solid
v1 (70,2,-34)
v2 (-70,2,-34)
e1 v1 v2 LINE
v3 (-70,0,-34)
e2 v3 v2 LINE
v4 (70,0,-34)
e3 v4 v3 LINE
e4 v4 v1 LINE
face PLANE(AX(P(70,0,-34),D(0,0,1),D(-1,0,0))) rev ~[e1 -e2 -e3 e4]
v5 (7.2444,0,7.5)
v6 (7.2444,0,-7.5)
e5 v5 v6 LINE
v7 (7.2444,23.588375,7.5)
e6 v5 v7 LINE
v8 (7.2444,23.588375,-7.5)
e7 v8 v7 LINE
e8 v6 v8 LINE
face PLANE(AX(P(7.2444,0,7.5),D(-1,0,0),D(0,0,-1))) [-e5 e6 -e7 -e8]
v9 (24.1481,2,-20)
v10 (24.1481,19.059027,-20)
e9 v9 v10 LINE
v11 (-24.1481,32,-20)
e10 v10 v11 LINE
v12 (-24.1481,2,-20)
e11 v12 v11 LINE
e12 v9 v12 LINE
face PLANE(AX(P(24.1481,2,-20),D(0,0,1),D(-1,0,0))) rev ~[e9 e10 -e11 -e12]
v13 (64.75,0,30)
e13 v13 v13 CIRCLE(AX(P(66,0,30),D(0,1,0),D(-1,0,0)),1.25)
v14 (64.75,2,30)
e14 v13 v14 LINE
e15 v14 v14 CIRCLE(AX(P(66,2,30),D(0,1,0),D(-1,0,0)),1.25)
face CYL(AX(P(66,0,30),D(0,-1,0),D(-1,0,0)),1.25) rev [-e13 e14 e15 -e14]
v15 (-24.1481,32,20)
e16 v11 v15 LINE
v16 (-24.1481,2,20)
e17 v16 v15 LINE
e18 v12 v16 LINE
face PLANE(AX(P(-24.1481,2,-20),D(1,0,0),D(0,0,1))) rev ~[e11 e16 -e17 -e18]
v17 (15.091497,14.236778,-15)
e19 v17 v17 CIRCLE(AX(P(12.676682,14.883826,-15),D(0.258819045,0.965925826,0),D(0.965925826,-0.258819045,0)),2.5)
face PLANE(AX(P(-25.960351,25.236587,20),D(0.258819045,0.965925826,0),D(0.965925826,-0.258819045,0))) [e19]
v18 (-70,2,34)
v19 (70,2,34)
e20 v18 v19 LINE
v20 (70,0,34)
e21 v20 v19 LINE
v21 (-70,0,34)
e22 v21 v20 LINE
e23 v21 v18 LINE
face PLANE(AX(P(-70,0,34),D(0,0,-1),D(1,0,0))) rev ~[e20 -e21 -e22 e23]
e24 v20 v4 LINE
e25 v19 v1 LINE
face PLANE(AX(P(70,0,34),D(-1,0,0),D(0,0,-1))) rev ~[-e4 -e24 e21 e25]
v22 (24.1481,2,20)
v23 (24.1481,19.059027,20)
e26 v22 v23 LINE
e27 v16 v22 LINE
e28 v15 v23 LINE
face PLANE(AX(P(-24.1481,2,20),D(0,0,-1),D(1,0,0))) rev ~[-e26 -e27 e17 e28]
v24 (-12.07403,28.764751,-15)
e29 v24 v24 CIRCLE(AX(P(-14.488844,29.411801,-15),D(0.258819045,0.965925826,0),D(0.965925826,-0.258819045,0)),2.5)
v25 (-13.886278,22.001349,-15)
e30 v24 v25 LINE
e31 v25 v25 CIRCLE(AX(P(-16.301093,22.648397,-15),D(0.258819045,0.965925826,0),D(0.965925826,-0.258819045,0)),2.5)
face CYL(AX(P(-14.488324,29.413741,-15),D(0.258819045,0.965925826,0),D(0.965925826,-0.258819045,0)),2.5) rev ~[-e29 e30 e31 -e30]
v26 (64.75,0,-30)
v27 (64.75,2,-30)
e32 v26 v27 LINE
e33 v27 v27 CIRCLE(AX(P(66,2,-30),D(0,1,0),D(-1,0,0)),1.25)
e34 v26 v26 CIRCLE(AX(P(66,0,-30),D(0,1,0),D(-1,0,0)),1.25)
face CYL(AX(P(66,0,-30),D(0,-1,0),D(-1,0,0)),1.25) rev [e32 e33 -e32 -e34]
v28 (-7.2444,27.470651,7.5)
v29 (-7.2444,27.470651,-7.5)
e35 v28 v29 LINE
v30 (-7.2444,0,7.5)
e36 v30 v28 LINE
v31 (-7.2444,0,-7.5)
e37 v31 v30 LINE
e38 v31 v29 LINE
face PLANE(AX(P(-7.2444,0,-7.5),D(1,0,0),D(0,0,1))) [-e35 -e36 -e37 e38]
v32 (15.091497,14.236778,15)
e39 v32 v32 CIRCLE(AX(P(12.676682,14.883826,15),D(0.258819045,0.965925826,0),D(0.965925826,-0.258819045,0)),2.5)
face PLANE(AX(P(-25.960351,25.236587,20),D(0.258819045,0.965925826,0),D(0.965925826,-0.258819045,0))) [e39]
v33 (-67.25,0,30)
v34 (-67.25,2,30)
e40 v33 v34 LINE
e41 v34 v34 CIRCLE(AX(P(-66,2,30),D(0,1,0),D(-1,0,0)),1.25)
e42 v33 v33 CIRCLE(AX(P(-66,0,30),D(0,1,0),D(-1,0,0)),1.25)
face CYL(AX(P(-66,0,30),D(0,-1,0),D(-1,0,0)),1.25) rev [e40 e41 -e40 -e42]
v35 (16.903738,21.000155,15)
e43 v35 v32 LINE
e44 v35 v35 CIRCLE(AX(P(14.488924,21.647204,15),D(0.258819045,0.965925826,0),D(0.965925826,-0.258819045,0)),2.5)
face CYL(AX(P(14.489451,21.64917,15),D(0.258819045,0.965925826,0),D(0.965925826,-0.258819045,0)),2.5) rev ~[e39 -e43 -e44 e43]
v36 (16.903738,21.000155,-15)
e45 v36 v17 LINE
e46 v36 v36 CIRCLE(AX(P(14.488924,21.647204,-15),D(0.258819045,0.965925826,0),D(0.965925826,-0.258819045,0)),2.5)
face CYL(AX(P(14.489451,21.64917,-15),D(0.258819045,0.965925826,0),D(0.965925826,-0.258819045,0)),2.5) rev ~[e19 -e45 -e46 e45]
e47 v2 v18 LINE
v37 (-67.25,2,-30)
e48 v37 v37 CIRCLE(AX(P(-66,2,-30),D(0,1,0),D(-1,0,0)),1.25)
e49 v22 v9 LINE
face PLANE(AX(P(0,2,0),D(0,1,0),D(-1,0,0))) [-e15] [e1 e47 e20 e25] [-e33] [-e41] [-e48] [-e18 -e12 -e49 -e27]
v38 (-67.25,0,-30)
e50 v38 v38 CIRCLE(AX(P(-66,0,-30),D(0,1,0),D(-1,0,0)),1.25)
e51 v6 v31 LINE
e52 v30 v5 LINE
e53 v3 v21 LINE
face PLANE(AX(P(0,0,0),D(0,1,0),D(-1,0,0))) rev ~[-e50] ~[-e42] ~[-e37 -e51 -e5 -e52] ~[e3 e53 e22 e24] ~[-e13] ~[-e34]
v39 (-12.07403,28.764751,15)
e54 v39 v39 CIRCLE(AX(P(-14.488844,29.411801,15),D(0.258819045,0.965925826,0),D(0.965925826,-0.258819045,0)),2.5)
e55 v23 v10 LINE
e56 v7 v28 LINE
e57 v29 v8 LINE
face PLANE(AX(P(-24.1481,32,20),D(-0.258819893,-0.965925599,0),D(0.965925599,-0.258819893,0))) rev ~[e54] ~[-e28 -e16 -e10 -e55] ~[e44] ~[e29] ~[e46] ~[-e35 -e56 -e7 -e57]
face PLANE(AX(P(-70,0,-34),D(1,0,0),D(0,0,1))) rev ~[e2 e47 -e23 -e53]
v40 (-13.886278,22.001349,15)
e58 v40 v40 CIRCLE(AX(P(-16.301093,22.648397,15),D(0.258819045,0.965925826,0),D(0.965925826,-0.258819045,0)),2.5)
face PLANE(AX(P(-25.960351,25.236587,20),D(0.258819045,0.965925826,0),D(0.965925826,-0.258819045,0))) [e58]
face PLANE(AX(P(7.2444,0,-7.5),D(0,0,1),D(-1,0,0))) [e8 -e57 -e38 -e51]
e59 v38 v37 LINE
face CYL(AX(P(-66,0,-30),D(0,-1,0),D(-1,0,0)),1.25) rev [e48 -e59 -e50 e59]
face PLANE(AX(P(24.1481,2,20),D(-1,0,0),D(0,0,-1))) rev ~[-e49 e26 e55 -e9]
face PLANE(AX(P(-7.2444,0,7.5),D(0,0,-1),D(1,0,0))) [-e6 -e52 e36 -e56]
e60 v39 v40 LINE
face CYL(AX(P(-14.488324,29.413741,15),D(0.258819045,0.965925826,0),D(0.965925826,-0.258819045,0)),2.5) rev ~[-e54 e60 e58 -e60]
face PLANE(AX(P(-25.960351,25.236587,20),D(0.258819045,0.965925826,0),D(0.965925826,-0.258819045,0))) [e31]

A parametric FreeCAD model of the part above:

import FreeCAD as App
import Part
import Sketcher

V = App.Vector
Q = App.Units.Quantity

doc = App.newDocument("Part")
params = doc.addObject("Spreadsheet::Sheet", "Params")
for row, (alias, value) in enumerate([
    ("sketch1_diameter", "2.5 mm"),
    ("sketch1_width", "140 mm"),
    ("sketch1_height", "68 mm"),
    ("pad1_length", "2 mm"),
    ("sketch2_height", "40 mm"),
    ("pad2_length", "30 mm"),
    ("sketch3_length", "50 mm"),
    ("sketch4_diameter", "5 mm"),
    ("pocket2_length", "7 mm"),
    ("sketch5_height", "15 mm"),
], start=1):
    params.set(f"A{row}", alias)
    params.set(f"B{row}", "=" + value)
    params.setAlias(f"B{row}", alias)

body = doc.addObject("PartDesign::Body", "Body")

sketch1 = doc.addObject("Sketcher::SketchObject", "Sketch")
body.addObject(sketch1)
sketch1.AttachmentSupport = (doc.XZ_Plane, [""])
sketch1.MapMode = "FlatFace"
sketch1.addGeometry([
    Part.LineSegment(V(-70, -34, 0), V(-70, 34, 0)),
    Part.LineSegment(V(-70, 34, 0), V(70, 34, 0)),
    Part.LineSegment(V(70, 34, 0), V(70, -34, 0)),
    Part.LineSegment(V(70, -34, 0), V(-70, -34, 0)),
    Part.Circle(V(66, -30, 0), V(0, 0, 1), 1.2),
    Part.Circle(V(-66, -30, 0), V(0, 0, 1), 1.2),
    Part.Circle(V(66, 30, 0), V(0, 0, 1), 1.2),
    Part.Circle(V(-66, 30, 0), V(0, 0, 1), 1.2),
], False)
sketch1.addConstraint([
    Sketcher.Constraint("Coincident", 0, 2, 1, 1),
    Sketcher.Constraint("Coincident", 1, 2, 2, 1),
    Sketcher.Constraint("Coincident", 2, 2, 3, 1),
    Sketcher.Constraint("Coincident", 3, 2, 0, 1),
    Sketcher.Constraint("Vertical", 0),
    Sketcher.Constraint("Horizontal", 1),
    Sketcher.Constraint("Vertical", 2),
    Sketcher.Constraint("Horizontal", 3),
    Sketcher.Constraint("Equal", 4, 5),
    Sketcher.Constraint("Equal", 5, 6),
    Sketcher.Constraint("Equal", 6, 7),
    Sketcher.Constraint("Symmetric", 5, 3, 6, 3, -1, 1),
    Sketcher.Constraint("Symmetric", 4, 3, 7, 3, -1, 1),
    Sketcher.Constraint("Symmetric", 0, 2, 2, 2, -1, 1),
    Sketcher.Constraint("Symmetric", 4, 3, 5, 3, -2),
    Sketcher.Constraint("Diameter", 4, 2.5),
    Sketcher.Constraint("DistanceX", 1, 1, 1, 2, 140.0),
    Sketcher.Constraint("DistanceY", 0, 1, 0, 2, 68.0),
    Sketcher.Constraint("DistanceX", 0, 2, 7, 3, 4.0),
    Sketcher.Constraint("DistanceY", 7, 3, 0, 2, 4.0),
])
sketch1.setExpression("Constraints[15]", "Params.sketch1_diameter")
sketch1.setExpression("Constraints[16]", "Params.sketch1_width")
sketch1.setExpression("Constraints[17]", "Params.sketch1_height")
pad1 = doc.addObject("PartDesign::Pad", "Pad")
body.addObject(pad1)
pad1.Profile = sketch1
pad1.setExpression("Length", "Params.pad1_length")
pad1.Reversed = True

sketch2 = doc.addObject("Sketcher::SketchObject", "Sketch001")
body.addObject(sketch2)
sketch2.AttachmentSupport = (doc.XZ_Plane, [""])
sketch2.MapMode = "FlatFace"
sketch2.AttachmentOffset = App.Placement(V(0, 0, -2), App.Rotation())
sketch2.addGeometry([
    Part.LineSegment(V(-24, -20, 0), V(-24, 20, 0)),
    Part.LineSegment(V(-24, 20, 0), V(24, 20, 0)),
    Part.LineSegment(V(24, 20, 0), V(24, -20, 0)),
    Part.LineSegment(V(24, -20, 0), V(-24, -20, 0)),
], False)
sketch2.addConstraint([
    Sketcher.Constraint("Coincident", 0, 2, 1, 1),
    Sketcher.Constraint("Coincident", 1, 2, 2, 1),
    Sketcher.Constraint("Coincident", 2, 2, 3, 1),
    Sketcher.Constraint("Coincident", 3, 2, 0, 1),
    Sketcher.Constraint("Vertical", 0),
    Sketcher.Constraint("Horizontal", 1),
    Sketcher.Constraint("Vertical", 2),
    Sketcher.Constraint("Horizontal", 3),
    Sketcher.Constraint("Symmetric", 0, 2, 2, 2, -1, 1),
    Sketcher.Constraint("DistanceY", 0, 1, 0, 2, 40.0),
    Sketcher.Constraint("DistanceX", 1, 1, 1, 2, 48.2962),
])
sketch2.setExpression("Constraints[9]", "Params.sketch2_height")
pad2 = doc.addObject("PartDesign::Pad", "Pad001")
body.addObject(pad2)
pad2.Profile = sketch2
pad2.setExpression("Length", "Params.pad2_length")
pad2.Reversed = True

sketch3 = doc.addObject("Sketcher::SketchObject", "Sketch002")
body.addObject(sketch3)
sketch3.AttachmentSupport = (doc.XY_Plane, [""])
sketch3.MapMode = "FlatFace"
sketch3.AttachmentOffset = App.Placement(V(0, 0, 20), App.Rotation())
sketch3.addGeometry([
    Part.LineSegment(V(24, 32, 0), V(-24, 32, 0)),
    Part.LineSegment(V(-24, 32, 0), V(24, 19, 0)),
    Part.LineSegment(V(24, 19, 0), V(24, 32, 0)),
], False)
sketch3.addConstraint([
    Sketcher.Constraint("Coincident", 0, 2, 1, 1),
    Sketcher.Constraint("Coincident", 1, 2, 2, 1),
    Sketcher.Constraint("Coincident", 2, 2, 0, 1),
    Sketcher.Constraint("Horizontal", 0),
    Sketcher.Constraint("Vertical", 2),
    Sketcher.Constraint("Angle", 1, Q("-15 deg")),
    Sketcher.Constraint("Distance", 1, 50.0),
    Sketcher.Constraint("DistanceY", -1, 1, 0, 2, 32.0),
    Sketcher.Constraint("DistanceX", 0, 2, -1, 1, 24.148),
])
sketch3.setExpression("Constraints[6]", "Params.sketch3_length")
pocket1 = doc.addObject("PartDesign::Pocket", "Pocket")
body.addObject(pocket1)
pocket1.Profile = sketch3
pocket1.Type = "UpToFirst"

sketch4 = doc.addObject("Sketcher::SketchObject", "Sketch003")
body.addObject(sketch4)
sketch4.Placement = App.Placement(V(-24.1481, 32, 20), App.Rotation(V(0.965925826, -0.258819045, 0), V(0, 0, -0.999999999), V(0.258819045, 0.965925826, 0), "ZXY"))
sketch4.addGeometry([
    Part.Circle(V(40, 5, 0), V(0, 0, 1), 2.5),
    Part.Circle(V(40, 35, 0), V(0, 0, 1), 2.5),
    Part.Circle(V(10, 35, 0), V(0, 0, 1), 2.5),
    Part.Circle(V(10, 5, 0), V(0, 0, 1), 2.5),
], False)
sketch4.addConstraint([
    Sketcher.Constraint("Equal", 0, 1),
    Sketcher.Constraint("Equal", 1, 2),
    Sketcher.Constraint("Equal", 2, 3),
    Sketcher.Constraint("Horizontal", 1, 3, 2, 3),
    Sketcher.Constraint("Horizontal", 0, 3, 3, 3),
    Sketcher.Constraint("Vertical", 0, 3, 1, 3),
    Sketcher.Constraint("Vertical", 2, 3, 3, 3),
    Sketcher.Constraint("Diameter", 0, 5.0),
    Sketcher.Constraint("DistanceY", -1, 1, 0, 3, 5.0),
    Sketcher.Constraint("DistanceY", 0, 3, 1, 3, 30.0),
    Sketcher.Constraint("DistanceX", 2, 3, 1, 3, 30.0),
    Sketcher.Constraint("DistanceX", -1, 1, 0, 3, 40.0),
])
sketch4.setExpression("Constraints[7]", "Params.sketch4_diameter")
pocket2 = doc.addObject("PartDesign::Pocket", "Pocket001")
body.addObject(pocket2)
pocket2.Profile = sketch4
pocket2.setExpression("Length", "Params.pocket2_length")

sketch5 = doc.addObject("Sketcher::SketchObject", "Sketch004")
body.addObject(sketch5)
sketch5.AttachmentSupport = (doc.XZ_Plane, [""])
sketch5.MapMode = "FlatFace"
sketch5.addGeometry([
    Part.LineSegment(V(7, 8, 0), V(-7, 8, 0)),
    Part.LineSegment(V(-7, 8, 0), V(-7, -8, 0)),
    Part.LineSegment(V(-7, -8, 0), V(7, -8, 0)),
    Part.LineSegment(V(7, -8, 0), V(7, 8, 0)),
], False)
sketch5.addConstraint([
    Sketcher.Constraint("Coincident", 0, 2, 1, 1),
    Sketcher.Constraint("Coincident", 1, 2, 2, 1),
    Sketcher.Constraint("Coincident", 2, 2, 3, 1),
    Sketcher.Constraint("Coincident", 3, 2, 0, 1),
    Sketcher.Constraint("Horizontal", 0),
    Sketcher.Constraint("Vertical", 1),
    Sketcher.Constraint("Horizontal", 2),
    Sketcher.Constraint("Vertical", 3),
    Sketcher.Constraint("Symmetric", 0, 2, 2, 2, -1, 1),
    Sketcher.Constraint("DistanceY", 1, 2, 1, 1, 15.0),
    Sketcher.Constraint("DistanceX", 0, 2, 0, 1, 14.4888),
])
sketch5.setExpression("Constraints[9]", "Params.sketch5_height")
pocket3 = doc.addObject("PartDesign::Pocket", "Pocket002")
body.addObject(pocket3)
pocket3.Profile = sketch5
pocket3.Type = "UpToFirst"

doc.recompute()
